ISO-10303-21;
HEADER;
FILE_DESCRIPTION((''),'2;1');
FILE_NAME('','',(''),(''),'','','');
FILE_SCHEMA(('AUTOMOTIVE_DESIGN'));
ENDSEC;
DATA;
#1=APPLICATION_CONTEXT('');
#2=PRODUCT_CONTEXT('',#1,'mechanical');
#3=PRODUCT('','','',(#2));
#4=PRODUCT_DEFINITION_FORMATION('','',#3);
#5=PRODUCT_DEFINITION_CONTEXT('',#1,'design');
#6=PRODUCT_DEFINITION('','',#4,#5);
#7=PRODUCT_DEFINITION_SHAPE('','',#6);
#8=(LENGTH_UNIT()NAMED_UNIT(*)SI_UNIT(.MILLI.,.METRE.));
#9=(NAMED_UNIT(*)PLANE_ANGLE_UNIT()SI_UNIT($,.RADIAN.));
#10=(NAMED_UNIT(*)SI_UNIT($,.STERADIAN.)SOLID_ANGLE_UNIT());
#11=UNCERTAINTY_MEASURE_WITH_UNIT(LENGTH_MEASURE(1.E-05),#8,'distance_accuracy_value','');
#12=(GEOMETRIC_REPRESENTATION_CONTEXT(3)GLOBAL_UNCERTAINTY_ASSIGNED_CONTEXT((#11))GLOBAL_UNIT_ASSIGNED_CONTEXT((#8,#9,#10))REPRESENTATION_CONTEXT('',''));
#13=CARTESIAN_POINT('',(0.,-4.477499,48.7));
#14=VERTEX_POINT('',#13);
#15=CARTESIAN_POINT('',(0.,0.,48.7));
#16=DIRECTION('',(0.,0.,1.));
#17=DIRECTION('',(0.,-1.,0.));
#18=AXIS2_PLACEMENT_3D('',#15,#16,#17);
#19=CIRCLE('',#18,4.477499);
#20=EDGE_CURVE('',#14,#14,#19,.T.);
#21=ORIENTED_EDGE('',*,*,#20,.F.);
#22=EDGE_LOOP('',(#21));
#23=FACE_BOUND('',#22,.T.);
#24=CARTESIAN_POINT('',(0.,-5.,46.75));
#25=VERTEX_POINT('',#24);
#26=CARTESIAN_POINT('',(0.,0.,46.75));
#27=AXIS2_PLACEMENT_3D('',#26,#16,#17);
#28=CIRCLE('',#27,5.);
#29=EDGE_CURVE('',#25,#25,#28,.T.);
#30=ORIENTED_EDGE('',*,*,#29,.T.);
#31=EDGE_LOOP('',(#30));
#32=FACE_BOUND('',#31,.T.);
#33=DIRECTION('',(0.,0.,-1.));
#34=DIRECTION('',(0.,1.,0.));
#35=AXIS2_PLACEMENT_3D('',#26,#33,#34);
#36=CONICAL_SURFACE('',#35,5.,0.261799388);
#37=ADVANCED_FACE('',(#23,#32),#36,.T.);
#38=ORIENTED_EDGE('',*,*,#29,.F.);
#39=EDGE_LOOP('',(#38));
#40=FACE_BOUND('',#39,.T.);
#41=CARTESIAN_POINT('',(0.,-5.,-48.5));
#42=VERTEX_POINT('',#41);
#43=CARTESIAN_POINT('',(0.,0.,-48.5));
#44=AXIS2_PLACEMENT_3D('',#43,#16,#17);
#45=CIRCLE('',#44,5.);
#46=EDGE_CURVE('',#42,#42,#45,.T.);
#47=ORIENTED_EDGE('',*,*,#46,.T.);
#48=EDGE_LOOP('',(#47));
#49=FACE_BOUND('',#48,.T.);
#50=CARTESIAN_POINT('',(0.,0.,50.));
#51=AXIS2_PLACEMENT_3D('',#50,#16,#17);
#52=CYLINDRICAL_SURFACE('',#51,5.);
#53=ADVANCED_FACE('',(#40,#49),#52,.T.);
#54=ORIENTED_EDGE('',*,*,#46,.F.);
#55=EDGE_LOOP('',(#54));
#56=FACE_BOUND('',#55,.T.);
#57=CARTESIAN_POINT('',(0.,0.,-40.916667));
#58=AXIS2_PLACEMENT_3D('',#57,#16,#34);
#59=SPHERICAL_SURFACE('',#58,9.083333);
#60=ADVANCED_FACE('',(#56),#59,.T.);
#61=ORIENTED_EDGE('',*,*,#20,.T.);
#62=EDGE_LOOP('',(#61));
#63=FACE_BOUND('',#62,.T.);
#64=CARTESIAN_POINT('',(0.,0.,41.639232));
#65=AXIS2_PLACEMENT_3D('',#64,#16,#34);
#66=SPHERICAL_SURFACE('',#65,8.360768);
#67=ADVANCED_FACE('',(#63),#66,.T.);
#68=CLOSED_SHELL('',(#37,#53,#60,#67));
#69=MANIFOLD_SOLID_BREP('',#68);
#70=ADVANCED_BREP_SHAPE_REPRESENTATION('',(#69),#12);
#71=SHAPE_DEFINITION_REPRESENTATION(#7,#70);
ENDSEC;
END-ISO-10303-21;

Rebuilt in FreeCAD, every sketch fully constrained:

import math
import FreeCAD as App
import Part
import Sketcher

V = App.Vector
Q = App.Units.Quantity

doc = App.newDocument("Part")
body = doc.addObject("PartDesign::Body", "Body")

# Sketch on YZ plane
sketch1 = body.newObject("Sketcher::SketchObject", "Sketch")
sketch1.AttachmentSupport = (doc.getObject("YZ_Plane"), [""])
sketch1.MapMode = "FlatFace"
sketch1.addGeometry([
    Part.LineSegment(V(0, 50, 0), V(0, -50, 0)),  # 0
    Part.ArcOfCircle(Part.Circle(V(0, -40.9, 0), V(0, 0, 1), 9.1), math.radians(-90), math.radians(-57)),  # 1
    Part.LineSegment(V(5, -48.5, 0), V(5, 46.8, 0)),  # 2
    Part.LineSegment(V(5, 46.8, 0), V(4.5, 48.7, 0)),  # 3
    Part.ArcOfCircle(Part.Circle(V(0, 41.6, 0), V(0, 0, 1), 8.4), math.radians(58), math.radians(90)),  # 4
], False)
sketch1.addConstraint([
    Sketcher.Constraint("Coincident", 0, 2, 1, 1),
    Sketcher.Constraint("Coincident", 1, 2, 2, 1),
    Sketcher.Constraint("Coincident", 2, 2, 3, 1),
    Sketcher.Constraint("Coincident", 3, 2, 4, 1),
    Sketcher.Constraint("Coincident", 4, 2, 0, 1),
    Sketcher.Constraint("Vertical", 0),
    Sketcher.Constraint("Vertical", 2),
    Sketcher.Constraint("Symmetric", 0, 2, 4, 2, -1, 1),
    Sketcher.Constraint("PointOnObject", 1, 3, -2),
    Sketcher.Constraint("PointOnObject", 4, 3, -2),
    Sketcher.Constraint("DistanceY", 0, 2, 0, 1, 100.0),
    Sketcher.Constraint("Angle", 3, Q("105 deg")),
    Sketcher.Constraint("DistanceX", -1, 1, 1, 2, 5.0),
    Sketcher.Constraint("DistanceY", 2, 1, 2, 2, 95.25),
    Sketcher.Constraint("DistanceY", 1, 2, -1, 1, 48.5),
    Sketcher.Constraint("DistanceY", -1, 1, 3, 2, 48.7),
])
revolution = body.newObject("PartDesign::Revolution", "Revolution")
revolution.Profile = sketch1
revolution.ReferenceAxis = (sketch1, ["V_Axis"])
revolution.Angle = 360

doc.recompute()
